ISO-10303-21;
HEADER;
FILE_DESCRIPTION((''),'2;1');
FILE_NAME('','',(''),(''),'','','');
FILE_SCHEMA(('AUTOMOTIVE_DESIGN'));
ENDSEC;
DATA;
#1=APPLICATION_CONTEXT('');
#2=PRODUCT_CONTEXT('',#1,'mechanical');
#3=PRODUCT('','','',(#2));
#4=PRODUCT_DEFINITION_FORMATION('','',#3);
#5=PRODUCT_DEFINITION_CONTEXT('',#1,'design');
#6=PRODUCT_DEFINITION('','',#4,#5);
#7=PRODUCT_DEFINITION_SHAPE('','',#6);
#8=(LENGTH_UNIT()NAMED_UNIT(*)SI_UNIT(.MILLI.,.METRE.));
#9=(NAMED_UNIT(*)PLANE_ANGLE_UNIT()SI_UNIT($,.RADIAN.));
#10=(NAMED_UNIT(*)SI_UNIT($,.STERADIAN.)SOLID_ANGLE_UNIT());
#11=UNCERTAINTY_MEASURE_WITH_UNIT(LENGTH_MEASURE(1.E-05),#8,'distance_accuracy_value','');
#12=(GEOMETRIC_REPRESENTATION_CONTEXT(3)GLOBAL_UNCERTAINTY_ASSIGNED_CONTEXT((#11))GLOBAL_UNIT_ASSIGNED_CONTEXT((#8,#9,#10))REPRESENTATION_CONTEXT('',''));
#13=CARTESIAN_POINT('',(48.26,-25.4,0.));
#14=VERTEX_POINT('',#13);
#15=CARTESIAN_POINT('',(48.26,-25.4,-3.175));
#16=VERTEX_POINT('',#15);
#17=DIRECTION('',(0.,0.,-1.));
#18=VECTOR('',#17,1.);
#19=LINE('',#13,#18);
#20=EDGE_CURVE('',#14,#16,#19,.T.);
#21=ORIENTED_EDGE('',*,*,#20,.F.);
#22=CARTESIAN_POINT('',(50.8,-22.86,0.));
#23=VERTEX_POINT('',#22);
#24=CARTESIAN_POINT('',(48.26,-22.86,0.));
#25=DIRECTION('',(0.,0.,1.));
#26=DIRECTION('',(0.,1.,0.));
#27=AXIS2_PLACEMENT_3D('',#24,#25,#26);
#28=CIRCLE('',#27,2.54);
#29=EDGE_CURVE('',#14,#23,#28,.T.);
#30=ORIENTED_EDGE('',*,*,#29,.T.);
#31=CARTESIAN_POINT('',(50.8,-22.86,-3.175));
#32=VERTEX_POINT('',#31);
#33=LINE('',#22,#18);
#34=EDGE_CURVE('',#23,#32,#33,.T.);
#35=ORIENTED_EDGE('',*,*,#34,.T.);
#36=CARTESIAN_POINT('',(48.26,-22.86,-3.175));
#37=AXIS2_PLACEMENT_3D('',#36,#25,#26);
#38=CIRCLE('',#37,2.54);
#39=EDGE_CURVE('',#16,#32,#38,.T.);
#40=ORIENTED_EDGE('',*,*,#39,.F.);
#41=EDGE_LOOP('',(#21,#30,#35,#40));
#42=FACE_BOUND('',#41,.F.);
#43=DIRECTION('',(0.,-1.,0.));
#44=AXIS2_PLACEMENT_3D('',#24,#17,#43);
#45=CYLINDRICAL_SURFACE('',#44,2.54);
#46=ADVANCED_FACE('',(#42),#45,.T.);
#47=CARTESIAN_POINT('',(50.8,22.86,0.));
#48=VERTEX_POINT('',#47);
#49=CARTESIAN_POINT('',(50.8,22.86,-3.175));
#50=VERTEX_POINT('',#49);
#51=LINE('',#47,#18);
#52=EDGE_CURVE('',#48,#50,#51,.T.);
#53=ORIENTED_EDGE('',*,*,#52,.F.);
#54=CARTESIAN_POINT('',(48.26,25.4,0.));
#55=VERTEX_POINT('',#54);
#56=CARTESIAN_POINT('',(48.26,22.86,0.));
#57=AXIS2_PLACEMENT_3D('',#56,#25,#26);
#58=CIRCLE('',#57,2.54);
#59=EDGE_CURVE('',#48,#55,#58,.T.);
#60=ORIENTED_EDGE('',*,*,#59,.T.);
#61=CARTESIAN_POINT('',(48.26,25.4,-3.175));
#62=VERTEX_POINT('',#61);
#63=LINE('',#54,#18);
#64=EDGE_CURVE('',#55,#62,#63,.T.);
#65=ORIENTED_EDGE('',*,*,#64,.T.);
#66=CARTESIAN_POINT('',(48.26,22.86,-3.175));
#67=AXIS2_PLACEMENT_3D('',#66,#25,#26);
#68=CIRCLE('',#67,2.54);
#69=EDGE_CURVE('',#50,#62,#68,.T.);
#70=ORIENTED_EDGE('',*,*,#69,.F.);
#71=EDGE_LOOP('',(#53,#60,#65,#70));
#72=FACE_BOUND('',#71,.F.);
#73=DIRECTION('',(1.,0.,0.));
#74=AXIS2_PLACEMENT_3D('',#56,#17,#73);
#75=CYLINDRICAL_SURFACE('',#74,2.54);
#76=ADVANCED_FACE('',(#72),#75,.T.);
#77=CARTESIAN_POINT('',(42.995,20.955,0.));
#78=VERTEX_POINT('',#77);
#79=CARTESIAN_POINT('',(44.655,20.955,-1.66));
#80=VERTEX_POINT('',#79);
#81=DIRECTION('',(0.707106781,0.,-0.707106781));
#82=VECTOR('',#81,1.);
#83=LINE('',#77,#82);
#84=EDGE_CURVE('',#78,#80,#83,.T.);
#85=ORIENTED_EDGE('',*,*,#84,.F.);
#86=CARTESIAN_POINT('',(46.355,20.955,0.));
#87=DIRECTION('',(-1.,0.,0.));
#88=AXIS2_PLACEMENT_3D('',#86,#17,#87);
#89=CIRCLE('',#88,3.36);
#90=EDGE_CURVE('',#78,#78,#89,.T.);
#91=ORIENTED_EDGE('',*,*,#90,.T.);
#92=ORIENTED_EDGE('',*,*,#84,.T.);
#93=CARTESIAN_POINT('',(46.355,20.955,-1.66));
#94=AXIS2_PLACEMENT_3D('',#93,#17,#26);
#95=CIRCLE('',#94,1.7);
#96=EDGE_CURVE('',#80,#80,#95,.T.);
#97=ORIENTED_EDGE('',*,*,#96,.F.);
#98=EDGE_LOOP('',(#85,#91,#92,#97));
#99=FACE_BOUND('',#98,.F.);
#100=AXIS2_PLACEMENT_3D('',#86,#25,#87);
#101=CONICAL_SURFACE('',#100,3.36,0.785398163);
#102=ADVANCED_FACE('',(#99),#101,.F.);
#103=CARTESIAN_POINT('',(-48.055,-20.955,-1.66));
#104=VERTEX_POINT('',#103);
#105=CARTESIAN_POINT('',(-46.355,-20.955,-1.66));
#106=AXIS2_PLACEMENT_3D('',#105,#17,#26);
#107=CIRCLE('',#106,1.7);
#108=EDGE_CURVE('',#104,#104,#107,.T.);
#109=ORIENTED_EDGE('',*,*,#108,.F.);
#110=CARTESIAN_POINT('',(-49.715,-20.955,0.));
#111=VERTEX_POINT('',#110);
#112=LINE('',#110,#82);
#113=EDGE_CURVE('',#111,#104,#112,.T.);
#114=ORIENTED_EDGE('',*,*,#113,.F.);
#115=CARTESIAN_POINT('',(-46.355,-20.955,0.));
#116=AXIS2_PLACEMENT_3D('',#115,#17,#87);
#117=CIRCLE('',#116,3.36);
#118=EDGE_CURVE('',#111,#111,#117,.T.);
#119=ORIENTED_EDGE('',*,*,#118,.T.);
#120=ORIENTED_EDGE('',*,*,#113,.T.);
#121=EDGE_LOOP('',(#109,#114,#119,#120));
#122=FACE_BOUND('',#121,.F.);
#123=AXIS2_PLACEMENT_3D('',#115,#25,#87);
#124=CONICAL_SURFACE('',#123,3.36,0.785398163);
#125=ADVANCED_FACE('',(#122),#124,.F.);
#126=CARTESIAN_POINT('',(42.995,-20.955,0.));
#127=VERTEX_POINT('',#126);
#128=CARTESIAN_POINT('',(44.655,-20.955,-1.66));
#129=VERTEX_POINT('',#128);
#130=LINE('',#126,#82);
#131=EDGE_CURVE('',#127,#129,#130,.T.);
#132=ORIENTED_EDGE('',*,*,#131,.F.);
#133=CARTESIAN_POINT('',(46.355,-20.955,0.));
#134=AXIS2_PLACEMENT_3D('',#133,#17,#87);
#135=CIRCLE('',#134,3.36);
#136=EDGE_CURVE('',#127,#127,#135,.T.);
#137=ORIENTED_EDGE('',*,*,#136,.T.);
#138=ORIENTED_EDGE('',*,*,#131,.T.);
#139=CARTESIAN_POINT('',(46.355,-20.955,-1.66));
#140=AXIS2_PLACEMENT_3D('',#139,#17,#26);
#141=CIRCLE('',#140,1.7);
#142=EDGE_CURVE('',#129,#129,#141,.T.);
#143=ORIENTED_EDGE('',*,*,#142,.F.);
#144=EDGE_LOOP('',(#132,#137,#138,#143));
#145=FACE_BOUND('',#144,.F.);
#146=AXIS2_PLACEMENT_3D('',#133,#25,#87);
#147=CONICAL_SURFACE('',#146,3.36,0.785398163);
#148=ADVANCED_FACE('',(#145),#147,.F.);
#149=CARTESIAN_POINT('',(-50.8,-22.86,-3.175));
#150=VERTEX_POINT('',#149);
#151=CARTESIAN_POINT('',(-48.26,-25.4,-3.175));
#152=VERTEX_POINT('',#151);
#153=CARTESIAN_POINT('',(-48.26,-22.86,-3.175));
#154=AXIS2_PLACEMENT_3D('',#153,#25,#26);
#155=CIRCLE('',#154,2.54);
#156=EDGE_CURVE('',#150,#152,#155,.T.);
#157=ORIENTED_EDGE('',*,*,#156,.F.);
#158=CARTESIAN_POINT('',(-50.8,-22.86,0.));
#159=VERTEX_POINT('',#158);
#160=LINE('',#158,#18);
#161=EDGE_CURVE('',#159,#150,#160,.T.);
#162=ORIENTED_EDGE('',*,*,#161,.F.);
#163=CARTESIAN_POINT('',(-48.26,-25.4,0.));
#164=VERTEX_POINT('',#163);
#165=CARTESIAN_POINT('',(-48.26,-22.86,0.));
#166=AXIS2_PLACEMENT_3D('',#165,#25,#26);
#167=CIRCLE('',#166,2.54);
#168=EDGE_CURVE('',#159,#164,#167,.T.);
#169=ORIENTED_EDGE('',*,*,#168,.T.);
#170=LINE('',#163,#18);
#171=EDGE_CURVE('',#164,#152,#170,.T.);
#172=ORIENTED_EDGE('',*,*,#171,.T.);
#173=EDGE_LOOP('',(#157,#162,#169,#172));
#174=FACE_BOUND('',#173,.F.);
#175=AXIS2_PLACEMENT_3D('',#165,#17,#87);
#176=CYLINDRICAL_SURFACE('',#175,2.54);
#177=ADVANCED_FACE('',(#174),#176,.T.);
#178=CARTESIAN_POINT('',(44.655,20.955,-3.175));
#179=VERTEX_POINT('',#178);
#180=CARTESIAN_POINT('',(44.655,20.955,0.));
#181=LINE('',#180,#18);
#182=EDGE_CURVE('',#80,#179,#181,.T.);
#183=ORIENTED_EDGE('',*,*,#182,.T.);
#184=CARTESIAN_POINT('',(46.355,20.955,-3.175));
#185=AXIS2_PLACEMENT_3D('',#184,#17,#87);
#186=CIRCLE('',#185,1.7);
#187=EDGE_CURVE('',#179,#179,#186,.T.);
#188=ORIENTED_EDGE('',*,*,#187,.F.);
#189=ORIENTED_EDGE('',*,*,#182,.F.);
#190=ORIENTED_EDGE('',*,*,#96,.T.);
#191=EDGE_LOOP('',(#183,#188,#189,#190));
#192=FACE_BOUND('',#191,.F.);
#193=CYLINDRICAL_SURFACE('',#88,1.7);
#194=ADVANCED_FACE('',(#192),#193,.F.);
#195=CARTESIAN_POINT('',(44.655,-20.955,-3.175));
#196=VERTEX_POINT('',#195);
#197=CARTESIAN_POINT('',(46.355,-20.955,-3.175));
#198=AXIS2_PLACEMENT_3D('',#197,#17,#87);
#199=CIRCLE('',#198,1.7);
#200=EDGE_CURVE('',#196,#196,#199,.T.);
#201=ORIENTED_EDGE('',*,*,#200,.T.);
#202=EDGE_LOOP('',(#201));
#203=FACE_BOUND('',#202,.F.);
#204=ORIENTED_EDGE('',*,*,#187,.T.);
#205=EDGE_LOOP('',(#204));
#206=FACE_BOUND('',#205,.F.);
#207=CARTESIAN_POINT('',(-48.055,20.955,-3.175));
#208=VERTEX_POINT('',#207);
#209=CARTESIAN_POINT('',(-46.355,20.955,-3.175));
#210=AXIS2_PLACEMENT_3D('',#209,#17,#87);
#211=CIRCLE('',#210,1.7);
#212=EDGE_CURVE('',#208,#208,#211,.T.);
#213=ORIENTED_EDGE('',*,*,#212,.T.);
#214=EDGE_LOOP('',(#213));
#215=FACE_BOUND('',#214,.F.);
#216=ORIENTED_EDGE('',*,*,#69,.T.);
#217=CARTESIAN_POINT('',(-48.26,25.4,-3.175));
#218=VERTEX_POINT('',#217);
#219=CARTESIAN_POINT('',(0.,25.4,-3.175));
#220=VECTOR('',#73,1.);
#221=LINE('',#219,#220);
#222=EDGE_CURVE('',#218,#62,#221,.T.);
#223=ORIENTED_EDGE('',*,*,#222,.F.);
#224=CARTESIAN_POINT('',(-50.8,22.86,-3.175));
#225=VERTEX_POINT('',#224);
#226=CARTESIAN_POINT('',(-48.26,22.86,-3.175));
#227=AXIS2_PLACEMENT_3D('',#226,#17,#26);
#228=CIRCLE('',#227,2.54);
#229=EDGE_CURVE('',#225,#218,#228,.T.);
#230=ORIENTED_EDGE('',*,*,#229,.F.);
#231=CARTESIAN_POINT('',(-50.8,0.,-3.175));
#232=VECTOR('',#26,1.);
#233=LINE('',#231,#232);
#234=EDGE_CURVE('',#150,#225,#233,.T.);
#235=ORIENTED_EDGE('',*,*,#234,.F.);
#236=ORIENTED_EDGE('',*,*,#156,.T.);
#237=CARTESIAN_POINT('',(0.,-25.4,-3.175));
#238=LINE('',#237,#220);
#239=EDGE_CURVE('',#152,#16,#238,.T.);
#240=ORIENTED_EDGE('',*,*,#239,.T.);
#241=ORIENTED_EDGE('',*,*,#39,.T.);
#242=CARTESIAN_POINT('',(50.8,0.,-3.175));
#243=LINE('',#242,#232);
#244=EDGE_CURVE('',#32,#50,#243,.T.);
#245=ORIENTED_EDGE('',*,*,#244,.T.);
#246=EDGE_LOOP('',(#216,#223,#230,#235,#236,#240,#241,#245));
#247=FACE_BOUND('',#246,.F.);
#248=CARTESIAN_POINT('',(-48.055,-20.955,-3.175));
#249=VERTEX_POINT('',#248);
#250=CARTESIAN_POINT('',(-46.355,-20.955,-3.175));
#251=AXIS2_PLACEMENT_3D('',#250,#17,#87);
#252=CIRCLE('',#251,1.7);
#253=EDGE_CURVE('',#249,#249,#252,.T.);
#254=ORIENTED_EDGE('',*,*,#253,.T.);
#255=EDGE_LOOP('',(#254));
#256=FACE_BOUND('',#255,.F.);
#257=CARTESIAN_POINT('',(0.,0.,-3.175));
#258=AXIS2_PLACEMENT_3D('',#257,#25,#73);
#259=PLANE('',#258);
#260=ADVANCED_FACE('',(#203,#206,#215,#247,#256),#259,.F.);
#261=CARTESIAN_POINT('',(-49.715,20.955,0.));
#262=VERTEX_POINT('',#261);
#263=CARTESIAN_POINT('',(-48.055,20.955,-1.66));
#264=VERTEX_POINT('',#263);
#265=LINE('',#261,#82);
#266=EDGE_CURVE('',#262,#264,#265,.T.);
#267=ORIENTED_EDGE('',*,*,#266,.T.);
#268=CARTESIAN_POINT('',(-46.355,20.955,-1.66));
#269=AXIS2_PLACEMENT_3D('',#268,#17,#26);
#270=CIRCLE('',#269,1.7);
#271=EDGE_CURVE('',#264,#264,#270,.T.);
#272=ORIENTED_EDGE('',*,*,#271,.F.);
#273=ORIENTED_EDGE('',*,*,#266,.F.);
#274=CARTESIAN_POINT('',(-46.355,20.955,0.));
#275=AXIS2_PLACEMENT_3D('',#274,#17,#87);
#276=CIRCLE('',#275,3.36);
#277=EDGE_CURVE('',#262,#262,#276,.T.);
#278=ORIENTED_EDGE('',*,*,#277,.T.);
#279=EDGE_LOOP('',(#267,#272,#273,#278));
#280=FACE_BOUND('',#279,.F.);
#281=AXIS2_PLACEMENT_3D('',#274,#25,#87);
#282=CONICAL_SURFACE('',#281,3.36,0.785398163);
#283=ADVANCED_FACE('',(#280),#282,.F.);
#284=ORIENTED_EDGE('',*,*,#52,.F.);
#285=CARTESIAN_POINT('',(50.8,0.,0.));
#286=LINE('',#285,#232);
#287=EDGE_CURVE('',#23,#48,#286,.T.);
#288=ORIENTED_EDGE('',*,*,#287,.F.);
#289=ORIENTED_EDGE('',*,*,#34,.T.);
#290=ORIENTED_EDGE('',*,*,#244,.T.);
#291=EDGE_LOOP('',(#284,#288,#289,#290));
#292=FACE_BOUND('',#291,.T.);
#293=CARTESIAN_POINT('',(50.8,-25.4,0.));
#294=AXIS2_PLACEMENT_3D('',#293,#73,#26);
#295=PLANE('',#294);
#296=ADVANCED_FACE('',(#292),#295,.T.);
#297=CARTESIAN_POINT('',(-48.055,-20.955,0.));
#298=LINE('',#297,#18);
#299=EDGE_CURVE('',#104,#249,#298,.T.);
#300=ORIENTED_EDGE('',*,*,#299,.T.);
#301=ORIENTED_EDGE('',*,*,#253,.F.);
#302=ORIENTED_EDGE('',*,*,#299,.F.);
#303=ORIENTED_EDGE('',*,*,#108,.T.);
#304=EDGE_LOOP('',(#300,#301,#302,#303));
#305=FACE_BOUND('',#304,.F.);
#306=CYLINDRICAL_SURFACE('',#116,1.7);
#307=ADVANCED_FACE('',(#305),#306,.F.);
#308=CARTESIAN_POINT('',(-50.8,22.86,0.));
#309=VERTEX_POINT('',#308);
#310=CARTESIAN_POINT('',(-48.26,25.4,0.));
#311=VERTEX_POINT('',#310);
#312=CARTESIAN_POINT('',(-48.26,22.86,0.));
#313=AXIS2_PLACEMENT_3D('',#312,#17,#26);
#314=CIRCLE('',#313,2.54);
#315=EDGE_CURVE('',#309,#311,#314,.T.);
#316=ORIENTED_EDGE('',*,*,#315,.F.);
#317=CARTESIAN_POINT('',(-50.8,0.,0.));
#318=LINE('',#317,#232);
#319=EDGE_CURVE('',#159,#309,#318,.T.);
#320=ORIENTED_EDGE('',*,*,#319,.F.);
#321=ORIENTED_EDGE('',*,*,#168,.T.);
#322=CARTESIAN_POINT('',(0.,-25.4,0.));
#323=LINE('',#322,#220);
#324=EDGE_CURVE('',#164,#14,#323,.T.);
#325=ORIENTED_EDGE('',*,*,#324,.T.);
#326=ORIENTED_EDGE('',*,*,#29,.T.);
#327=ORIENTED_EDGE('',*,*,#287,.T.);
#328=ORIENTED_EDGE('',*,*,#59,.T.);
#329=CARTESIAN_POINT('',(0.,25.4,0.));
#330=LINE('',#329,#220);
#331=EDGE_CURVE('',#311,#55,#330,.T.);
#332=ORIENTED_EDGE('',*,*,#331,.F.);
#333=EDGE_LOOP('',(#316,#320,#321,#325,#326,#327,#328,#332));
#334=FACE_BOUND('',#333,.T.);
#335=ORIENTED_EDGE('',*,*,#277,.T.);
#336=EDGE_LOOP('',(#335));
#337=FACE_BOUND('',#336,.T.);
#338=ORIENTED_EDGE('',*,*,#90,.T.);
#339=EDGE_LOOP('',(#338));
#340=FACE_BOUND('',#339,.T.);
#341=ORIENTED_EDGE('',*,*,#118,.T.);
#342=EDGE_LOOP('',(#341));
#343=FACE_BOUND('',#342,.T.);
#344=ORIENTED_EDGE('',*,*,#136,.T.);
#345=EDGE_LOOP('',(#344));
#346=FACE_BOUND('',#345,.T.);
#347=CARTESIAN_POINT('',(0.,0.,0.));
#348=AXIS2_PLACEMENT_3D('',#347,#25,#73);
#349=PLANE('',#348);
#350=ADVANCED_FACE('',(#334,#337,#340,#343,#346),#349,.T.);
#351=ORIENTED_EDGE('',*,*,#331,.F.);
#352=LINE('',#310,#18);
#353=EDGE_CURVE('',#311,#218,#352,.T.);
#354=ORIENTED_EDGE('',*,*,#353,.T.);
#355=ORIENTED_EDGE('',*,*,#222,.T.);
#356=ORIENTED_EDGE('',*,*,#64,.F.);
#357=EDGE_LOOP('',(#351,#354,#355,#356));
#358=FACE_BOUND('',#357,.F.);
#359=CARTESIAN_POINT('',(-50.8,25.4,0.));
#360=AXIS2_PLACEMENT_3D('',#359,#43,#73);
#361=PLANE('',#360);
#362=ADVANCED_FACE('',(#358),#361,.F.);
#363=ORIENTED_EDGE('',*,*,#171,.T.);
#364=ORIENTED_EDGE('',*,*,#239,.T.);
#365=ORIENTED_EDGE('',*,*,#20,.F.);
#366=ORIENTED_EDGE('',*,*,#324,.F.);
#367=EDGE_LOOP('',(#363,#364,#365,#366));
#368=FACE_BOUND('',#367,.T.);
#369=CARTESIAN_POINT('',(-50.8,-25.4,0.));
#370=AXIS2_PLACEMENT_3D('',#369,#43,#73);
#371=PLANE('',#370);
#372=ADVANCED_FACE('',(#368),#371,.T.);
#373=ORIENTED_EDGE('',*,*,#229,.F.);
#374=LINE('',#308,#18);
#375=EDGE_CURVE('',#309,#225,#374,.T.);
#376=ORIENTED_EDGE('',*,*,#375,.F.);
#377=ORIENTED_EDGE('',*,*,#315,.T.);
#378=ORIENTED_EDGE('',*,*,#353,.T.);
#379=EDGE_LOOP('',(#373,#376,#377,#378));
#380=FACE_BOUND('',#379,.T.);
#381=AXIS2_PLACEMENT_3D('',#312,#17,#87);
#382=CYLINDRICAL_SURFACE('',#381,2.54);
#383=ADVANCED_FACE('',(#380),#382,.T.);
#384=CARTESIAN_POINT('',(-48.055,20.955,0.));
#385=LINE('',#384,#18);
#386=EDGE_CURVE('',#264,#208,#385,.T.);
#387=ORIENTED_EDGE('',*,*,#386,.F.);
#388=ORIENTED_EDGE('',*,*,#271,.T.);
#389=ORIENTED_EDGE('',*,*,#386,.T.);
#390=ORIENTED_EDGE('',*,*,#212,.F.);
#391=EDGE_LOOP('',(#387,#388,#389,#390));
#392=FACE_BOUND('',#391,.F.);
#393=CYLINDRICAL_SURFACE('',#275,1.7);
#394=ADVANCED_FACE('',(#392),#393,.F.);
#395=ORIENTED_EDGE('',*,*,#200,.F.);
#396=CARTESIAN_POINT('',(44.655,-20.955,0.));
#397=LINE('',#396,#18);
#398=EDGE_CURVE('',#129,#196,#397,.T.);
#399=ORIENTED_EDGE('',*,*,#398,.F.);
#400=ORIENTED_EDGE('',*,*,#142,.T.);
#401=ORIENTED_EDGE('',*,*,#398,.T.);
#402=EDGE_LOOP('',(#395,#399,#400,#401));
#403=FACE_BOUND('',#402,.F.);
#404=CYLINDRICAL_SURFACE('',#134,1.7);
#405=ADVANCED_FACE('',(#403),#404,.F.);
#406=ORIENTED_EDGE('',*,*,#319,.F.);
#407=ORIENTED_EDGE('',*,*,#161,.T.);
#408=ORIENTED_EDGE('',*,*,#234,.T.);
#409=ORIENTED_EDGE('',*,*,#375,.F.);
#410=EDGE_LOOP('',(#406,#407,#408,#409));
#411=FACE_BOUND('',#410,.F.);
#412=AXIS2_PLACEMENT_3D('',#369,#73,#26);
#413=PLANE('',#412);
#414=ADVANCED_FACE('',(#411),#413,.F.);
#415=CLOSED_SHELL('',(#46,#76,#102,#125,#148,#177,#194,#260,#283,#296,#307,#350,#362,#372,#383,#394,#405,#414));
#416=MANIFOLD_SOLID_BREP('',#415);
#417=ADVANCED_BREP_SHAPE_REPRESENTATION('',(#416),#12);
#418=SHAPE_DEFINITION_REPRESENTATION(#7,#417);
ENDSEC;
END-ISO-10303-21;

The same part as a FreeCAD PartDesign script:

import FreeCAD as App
import Part
import Sketcher
from FreeCAD import Vector
Q = App.Units.Quantity


def edges_at(feature, points):
    """Names of the edges that pass closest to the given points."""
    edges = feature.Shape.Edges
    near = lambda p: min(range(len(edges)), key=lambda i: edges[i].distToShape(Part.Vertex(*p))[0])
    return sorted({f"Edge{near(p) + 1}" for p in points})


def add_polygon(sketch, points):
    """Adds a closed chain of lines whose ends are joined by coincident constraints."""
    first, n = sketch.GeometryCount, len(points)
    for a, b in zip(points, points[1:] + points[:1]):
        sketch.addGeometry(Part.LineSegment(App.Vector(*a, 0), App.Vector(*b, 0)), False)
    for i in range(n):
        sketch.addConstraint(Sketcher.Constraint("Coincident", first + i, 2, first + (i + 1) % n, 1))

doc = App.newDocument("Part")
body = doc.addObject("PartDesign::Body", "Body")

sketch1 = doc.addObject("Sketcher::SketchObject", "Sketch")
body.addObject(sketch1)
sketch1.AttachmentSupport = (doc.XY_Plane, [""])
sketch1.MapMode = "FlatFace"
add_polygon(sketch1, [(-51, 25), (-51, -25), (51, -25), (51, 25)])
sketch1.addConstraint(Sketcher.Constraint("Vertical", 0))
sketch1.addConstraint(Sketcher.Constraint("Horizontal", 1))
sketch1.addConstraint(Sketcher.Constraint("Vertical", 2))
sketch1.addConstraint(Sketcher.Constraint("Horizontal", 3))
sketch1.addConstraint(Sketcher.Constraint("Symmetric", 0, 2, 2, 2, -1, 1))
sketch1.addConstraint(Sketcher.Constraint("DistanceX", 1, 1, 1, 2, Q("4 in")))
sketch1.addConstraint(Sketcher.Constraint("DistanceY", 0, 2, 0, 1, Q("2 in")))
pad1 = doc.addObject("PartDesign::Pad", "Pad")
body.addObject(pad1)
pad1.Profile = sketch1
pad1.Length = Q("0.125 in")
pad1.Reversed = True
doc.recompute()

fillet = doc.addObject("PartDesign::Fillet", "Fillet")
body.addObject(fillet)
fillet.Base = (pad1, edges_at(pad1, [
    (-50.8, -25.4, -1.587),
    (50.8, -25.4, -1.587),
    (50.8, 25.4, -1.587),
    (-50.8, 25.4, -1.587),
]))
fillet.Radius = Q("0.1 in")

sketch2 = doc.addObject("Sketcher::SketchObject", "Sketch001")
body.addObject(sketch2)
sketch2.AttachmentSupport = (doc.XY_Plane, [""])
sketch2.MapMode = "FlatFace"
sketch2.addGeometry(Part.Circle(Vector(-46.4, 21, 0), Vector(0, 0, 1), 1.7), False)
sketch2.addGeometry(Part.Circle(Vector(46.4, 21, 0), Vector(0, 0, 1), 1.7), False)
sketch2.addGeometry(Part.Circle(Vector(46.4, -21, 0), Vector(0, 0, 1), 1.7), False)
sketch2.addGeometry(Part.Circle(Vector(-46.4, -21, 0), Vector(0, 0, 1), 1.7), False)
sketch2.addConstraint(Sketcher.Constraint("Equal", 0, 1))
sketch2.addConstraint(Sketcher.Constraint("Equal", 1, 2))
sketch2.addConstraint(Sketcher.Constraint("Equal", 2, 3))
sketch2.addConstraint(Sketcher.Constraint("Symmetric", 0, 3, 2, 3, -1, 1))
sketch2.addConstraint(Sketcher.Constraint("Symmetric", 1, 3, 3, 3, -1, 1))
sketch2.addConstraint(Sketcher.Constraint("Symmetric", 0, 3, 1, 3, -2))
sketch2.addConstraint(Sketcher.Constraint("Diameter", 0, 3.4))
sketch2.addConstraint(Sketcher.Constraint("DistanceX", 0, 3, 1, 3, Q("3.65 in")))
sketch2.addConstraint(Sketcher.Constraint("DistanceY", 2, 3, 1, 3, Q("1.65 in")))
doc.recompute()
hole = doc.addObject("PartDesign::Hole", "Hole")
body.addObject(hole)
hole.Profile = sketch2
hole.ThreadType = "None"
hole.Diameter = 3.4
hole.DepthType = "ThroughAll"
hole.HoleCutType = "Countersink"
hole.HoleCutDiameter = 6.72
hole.HoleCutCountersinkAngle = 90

doc.recompute()
